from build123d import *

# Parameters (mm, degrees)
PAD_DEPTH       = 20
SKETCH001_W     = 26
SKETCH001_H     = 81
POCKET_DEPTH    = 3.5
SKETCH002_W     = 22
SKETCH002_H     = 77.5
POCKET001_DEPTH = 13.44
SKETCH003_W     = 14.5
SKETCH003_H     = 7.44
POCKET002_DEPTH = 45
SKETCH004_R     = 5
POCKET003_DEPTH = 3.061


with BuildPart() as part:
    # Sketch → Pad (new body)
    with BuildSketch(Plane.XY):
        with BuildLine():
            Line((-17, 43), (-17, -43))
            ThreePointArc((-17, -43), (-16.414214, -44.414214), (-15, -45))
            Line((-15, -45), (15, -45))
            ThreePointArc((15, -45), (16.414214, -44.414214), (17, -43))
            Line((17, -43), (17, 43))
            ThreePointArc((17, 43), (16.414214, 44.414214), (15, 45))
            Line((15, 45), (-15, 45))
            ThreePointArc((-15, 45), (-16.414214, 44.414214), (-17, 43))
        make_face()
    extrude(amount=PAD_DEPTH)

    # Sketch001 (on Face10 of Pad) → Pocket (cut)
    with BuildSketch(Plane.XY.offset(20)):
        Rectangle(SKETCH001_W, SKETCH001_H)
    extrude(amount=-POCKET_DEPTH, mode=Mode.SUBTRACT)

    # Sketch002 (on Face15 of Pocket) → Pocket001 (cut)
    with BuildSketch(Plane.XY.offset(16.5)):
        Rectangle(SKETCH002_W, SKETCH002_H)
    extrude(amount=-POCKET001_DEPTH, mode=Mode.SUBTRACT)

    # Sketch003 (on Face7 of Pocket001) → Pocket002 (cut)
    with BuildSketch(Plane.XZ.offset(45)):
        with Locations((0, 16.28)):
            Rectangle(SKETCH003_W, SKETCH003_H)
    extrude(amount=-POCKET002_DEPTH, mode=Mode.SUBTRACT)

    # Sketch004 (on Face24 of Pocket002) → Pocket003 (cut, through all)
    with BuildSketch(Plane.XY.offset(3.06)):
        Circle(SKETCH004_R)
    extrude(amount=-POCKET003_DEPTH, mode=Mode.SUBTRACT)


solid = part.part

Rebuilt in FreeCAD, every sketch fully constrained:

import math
import FreeCAD as App
import Part
import Sketcher
from FreeCAD import Vector

doc = App.newDocument("Part")
params = doc.addObject("Spreadsheet::Sheet", "Params")
for row, (alias, value) in enumerate([
    ("sketch1_radius", "1.999999 mm"),
    ("sketch1_width", "30 mm"),
    ("sketch1_height", "86 mm"),
    ("pad1_length", "20 mm"),
    ("sketch2_width", "26 mm"),
    ("sketch2_height", "81 mm"),
    ("pocket1_length", "3.5 mm"),
    ("sketch3_width", "22 mm"),
    ("sketch3_height", "77.5 mm"),
    ("pocket2_length", "13.44 mm"),
    ("sketch4_width", "14.5 mm"),
    ("sketch4_height", "7.44 mm"),
    ("pocket3_length", "45 mm"),
    ("sketch5_diameter", "10 mm"),
], start=1):
    params.set(f"A{row}", alias)
    params.set(f"B{row}", "=" + value)
    params.setAlias(f"B{row}", alias)

body = doc.addObject("PartDesign::Body", "Body")

sketch1 = body.newObject("Sketcher::SketchObject", "Sketch")
sketch1.AttachmentSupport = (doc.getObject("XY_Plane"), [""])
sketch1.MapMode = "FlatFace"
sketch1.addGeometry([
    Part.LineSegment(Vector(-17, 43, 0), Vector(-17, -43, 0)),
    Part.ArcOfCircle(Part.Circle(Vector(-15, -43, 0), Vector(0, 0, 1), 2), math.radians(180), math.radians(270)),
    Part.LineSegment(Vector(-15, -45, 0), Vector(15, -45, 0)),
    Part.ArcOfCircle(Part.Circle(Vector(15, -43, 0), Vector(0, 0, 1), 2), math.radians(-90), math.radians(0)),
    Part.LineSegment(Vector(17, -43, 0), Vector(17, 43, 0)),
    Part.ArcOfCircle(Part.Circle(Vector(15, 43, 0), Vector(0, 0, 1), 2), math.radians(0), math.radians(90)),
    Part.LineSegment(Vector(15, 45, 0), Vector(-15, 45, 0)),
    Part.ArcOfCircle(Part.Circle(Vector(-15, 43, 0), Vector(0, 0, 1), 2), math.radians(90), math.radians(180)),
], False)
sketch1.addConstraint([
    Sketcher.Constraint("Tangent", 0, 2, 1, 1),
    Sketcher.Constraint("Tangent", 1, 2, 2, 1),
    Sketcher.Constraint("Tangent", 2, 2, 3, 1),
    Sketcher.Constraint("Tangent", 3, 2, 4, 1),
    Sketcher.Constraint("Tangent", 4, 2, 5, 1),
    Sketcher.Constraint("Tangent", 5, 2, 6, 1),
    Sketcher.Constraint("Tangent", 6, 2, 7, 1),
    Sketcher.Constraint("Tangent", 7, 2, 0, 1),
    Sketcher.Constraint("Vertical", 0),
    Sketcher.Constraint("Horizontal", 2),
    Sketcher.Constraint("Vertical", 4),
    Sketcher.Constraint("Horizontal", 6),
    Sketcher.Constraint("Equal", 1, 3),
    Sketcher.Constraint("Equal", 3, 5),
    Sketcher.Constraint("Equal", 5, 7),
    Sketcher.Constraint("Symmetric", 1, 3, 5, 3, -1, 1),
    Sketcher.Constraint("Radius", 1, 1.999999),
    Sketcher.Constraint("DistanceX", 2, 1, 2, 2, 30.0),
    Sketcher.Constraint("DistanceY", 0, 2, 0, 1, 86.0),
])
sketch1.setExpression("Constraints[16]", "Params.sketch1_radius")
sketch1.setExpression("Constraints[17]", "Params.sketch1_width")
sketch1.setExpression("Constraints[18]", "Params.sketch1_height")
pad1 = body.newObject("PartDesign::Pad", "Pad")
pad1.Profile = sketch1
pad1.setExpression("Length", "Params.pad1_length")

sketch2 = body.newObject("Sketcher::SketchObject", "Sketch001")
sketch2.AttachmentSupport = (doc.getObject("XY_Plane"), [""])
sketch2.MapMode = "FlatFace"
sketch2.AttachmentOffset = App.Placement(Vector(0, 0, 20), App.Rotation())
sketch2.addGeometry([
    Part.LineSegment(Vector(-13, 40, 0), Vector(-13, -40, 0)),
    Part.LineSegment(Vector(-13, -40, 0), Vector(13, -40, 0)),
    Part.LineSegment(Vector(13, -40, 0), Vector(13, 40, 0)),
    Part.LineSegment(Vector(13, 40, 0), Vector(-13, 40, 0)),
], False)
sketch2.addConstraint([
    Sketcher.Constraint("Coincident", 0, 2, 1, 1),
    Sketcher.Constraint("Coincident", 1, 2, 2, 1),
    Sketcher.Constraint("Coincident", 2, 2, 3, 1),
    Sketcher.Constraint("Coincident", 3, 2, 0, 1),
    Sketcher.Constraint("Vertical", 0),
    Sketcher.Constraint("Horizontal", 1),
    Sketcher.Constraint("Vertical", 2),
    Sketcher.Constraint("Horizontal", 3),
    Sketcher.Constraint("Symmetric", 0, 2, 2, 2, -1, 1),
    Sketcher.Constraint("DistanceX", 1, 1, 1, 2, 26.0),
    Sketcher.Constraint("DistanceY", 0, 2, 0, 1, 81.0),
])
sketch2.setExpression("Constraints[9]", "Params.sketch2_width")
sketch2.setExpression("Constraints[10]", "Params.sketch2_height")
pocket1 = body.newObject("PartDesign::Pocket", "Pocket")
pocket1.Profile = sketch2
pocket1.setExpression("Length", "Params.pocket1_length")

sketch3 = body.newObject("Sketcher::SketchObject", "Sketch002")
sketch3.AttachmentSupport = (doc.getObject("XY_Plane"), [""])
sketch3.MapMode = "FlatFace"
sketch3.AttachmentOffset = App.Placement(Vector(0, 0, 16.5), App.Rotation())
sketch3.addGeometry([
    Part.LineSegment(Vector(-11, 39, 0), Vector(-11, -39, 0)),
    Part.LineSegment(Vector(-11, -39, 0), Vector(11, -39, 0)),
    Part.LineSegment(Vector(11, -39, 0), Vector(11, 39, 0)),
    Part.LineSegment(Vector(11, 39, 0), Vector(-11, 39, 0)),
], False)
sketch3.addConstraint([
    Sketcher.Constraint("Coincident", 0, 2, 1, 1),
    Sketcher.Constraint("Coincident", 1, 2, 2, 1),
    Sketcher.Constraint("Coincident", 2, 2, 3, 1),
    Sketcher.Constraint("Coincident", 3, 2, 0, 1),
    Sketcher.Constraint("Vertical", 0),
    Sketcher.Constraint("Horizontal", 1),
    Sketcher.Constraint("Vertical", 2),
    Sketcher.Constraint("Horizontal", 3),
    Sketcher.Constraint("Symmetric", 0, 2, 2, 2, -1, 1),
    Sketcher.Constraint("DistanceX", 1, 1, 1, 2, 22.0),
    Sketcher.Constraint("DistanceY", 0, 2, 0, 1, 77.5),
])
sketch3.setExpression("Constraints[9]", "Params.sketch3_width")
sketch3.setExpression("Constraints[10]", "Params.sketch3_height")
pocket2 = body.newObject("PartDesign::Pocket", "Pocket001")
pocket2.Profile = sketch3
pocket2.setExpression("Length", "Params.pocket2_length")

sketch4 = body.newObject("Sketcher::SketchObject", "Sketch003")
sketch4.AttachmentSupport = (doc.getObject("XZ_Plane"), [""])
sketch4.MapMode = "FlatFace"
sketch4.AttachmentOffset = App.Placement(Vector(0, 0, 45), App.Rotation())
sketch4.addGeometry([
    Part.LineSegment(Vector(-7, 20, 0), Vector(-7, 13, 0)),
    Part.LineSegment(Vector(-7, 13, 0), Vector(7, 13, 0)),
    Part.LineSegment(Vector(7, 13, 0), Vector(7, 20, 0)),
    Part.LineSegment(Vector(7, 20, 0), Vector(-7, 20, 0)),
], False)
sketch4.addConstraint([
    Sketcher.Constraint("Coincident", 0, 2, 1, 1),
    Sketcher.Constraint("Coincident", 1, 2, 2, 1),
    Sketcher.Constraint("Coincident", 2, 2, 3, 1),
    Sketcher.Constraint("Coincident", 3, 2, 0, 1),
    Sketcher.Constraint("Vertical", 0),
    Sketcher.Constraint("Horizontal", 1),
    Sketcher.Constraint("Vertical", 2),
    Sketcher.Constraint("Horizontal", 3),
    Sketcher.Constraint("DistanceX", 1, 1, 1, 2, 14.5),
    Sketcher.Constraint("DistanceY", -1, 1, 2, 2, 20.0),
    Sketcher.Constraint("DistanceY", 0, 2, 0, 1, 7.44),
    Sketcher.Constraint("DistanceX", 0, 2, -1, 1, 7.25),
])
sketch4.setExpression("Constraints[8]", "Params.sketch4_width")
sketch4.setExpression("Constraints[10]", "Params.sketch4_height")
pocket3 = body.newObject("PartDesign::Pocket", "Pocket002")
pocket3.Profile = sketch4
pocket3.setExpression("Length", "Params.pocket3_length")

sketch5 = body.newObject("Sketcher::SketchObject", "Sketch004")
sketch5.AttachmentSupport = (doc.getObject("XY_Plane"), [""])
sketch5.MapMode = "FlatFace"
sketch5.AttachmentOffset = App.Placement(Vector(0, 0, 3.06), App.Rotation())
sketch5.addGeometry(Part.Circle(Vector(0, 0, 0), Vector(0, 0, 1), 5), False)
sketch5.addConstraint([
    Sketcher.Constraint("Coincident", 0, 3, -1, 1),
    Sketcher.Constraint("Diameter", 0, 10.0),
])
sketch5.setExpression("Constraints[1]", "Params.sketch5_diameter")
pocket4 = body.newObject("PartDesign::Pocket", "Pocket003")
pocket4.Profile = sketch5
pocket4.Type = "ThroughAll"

doc.recompute()
